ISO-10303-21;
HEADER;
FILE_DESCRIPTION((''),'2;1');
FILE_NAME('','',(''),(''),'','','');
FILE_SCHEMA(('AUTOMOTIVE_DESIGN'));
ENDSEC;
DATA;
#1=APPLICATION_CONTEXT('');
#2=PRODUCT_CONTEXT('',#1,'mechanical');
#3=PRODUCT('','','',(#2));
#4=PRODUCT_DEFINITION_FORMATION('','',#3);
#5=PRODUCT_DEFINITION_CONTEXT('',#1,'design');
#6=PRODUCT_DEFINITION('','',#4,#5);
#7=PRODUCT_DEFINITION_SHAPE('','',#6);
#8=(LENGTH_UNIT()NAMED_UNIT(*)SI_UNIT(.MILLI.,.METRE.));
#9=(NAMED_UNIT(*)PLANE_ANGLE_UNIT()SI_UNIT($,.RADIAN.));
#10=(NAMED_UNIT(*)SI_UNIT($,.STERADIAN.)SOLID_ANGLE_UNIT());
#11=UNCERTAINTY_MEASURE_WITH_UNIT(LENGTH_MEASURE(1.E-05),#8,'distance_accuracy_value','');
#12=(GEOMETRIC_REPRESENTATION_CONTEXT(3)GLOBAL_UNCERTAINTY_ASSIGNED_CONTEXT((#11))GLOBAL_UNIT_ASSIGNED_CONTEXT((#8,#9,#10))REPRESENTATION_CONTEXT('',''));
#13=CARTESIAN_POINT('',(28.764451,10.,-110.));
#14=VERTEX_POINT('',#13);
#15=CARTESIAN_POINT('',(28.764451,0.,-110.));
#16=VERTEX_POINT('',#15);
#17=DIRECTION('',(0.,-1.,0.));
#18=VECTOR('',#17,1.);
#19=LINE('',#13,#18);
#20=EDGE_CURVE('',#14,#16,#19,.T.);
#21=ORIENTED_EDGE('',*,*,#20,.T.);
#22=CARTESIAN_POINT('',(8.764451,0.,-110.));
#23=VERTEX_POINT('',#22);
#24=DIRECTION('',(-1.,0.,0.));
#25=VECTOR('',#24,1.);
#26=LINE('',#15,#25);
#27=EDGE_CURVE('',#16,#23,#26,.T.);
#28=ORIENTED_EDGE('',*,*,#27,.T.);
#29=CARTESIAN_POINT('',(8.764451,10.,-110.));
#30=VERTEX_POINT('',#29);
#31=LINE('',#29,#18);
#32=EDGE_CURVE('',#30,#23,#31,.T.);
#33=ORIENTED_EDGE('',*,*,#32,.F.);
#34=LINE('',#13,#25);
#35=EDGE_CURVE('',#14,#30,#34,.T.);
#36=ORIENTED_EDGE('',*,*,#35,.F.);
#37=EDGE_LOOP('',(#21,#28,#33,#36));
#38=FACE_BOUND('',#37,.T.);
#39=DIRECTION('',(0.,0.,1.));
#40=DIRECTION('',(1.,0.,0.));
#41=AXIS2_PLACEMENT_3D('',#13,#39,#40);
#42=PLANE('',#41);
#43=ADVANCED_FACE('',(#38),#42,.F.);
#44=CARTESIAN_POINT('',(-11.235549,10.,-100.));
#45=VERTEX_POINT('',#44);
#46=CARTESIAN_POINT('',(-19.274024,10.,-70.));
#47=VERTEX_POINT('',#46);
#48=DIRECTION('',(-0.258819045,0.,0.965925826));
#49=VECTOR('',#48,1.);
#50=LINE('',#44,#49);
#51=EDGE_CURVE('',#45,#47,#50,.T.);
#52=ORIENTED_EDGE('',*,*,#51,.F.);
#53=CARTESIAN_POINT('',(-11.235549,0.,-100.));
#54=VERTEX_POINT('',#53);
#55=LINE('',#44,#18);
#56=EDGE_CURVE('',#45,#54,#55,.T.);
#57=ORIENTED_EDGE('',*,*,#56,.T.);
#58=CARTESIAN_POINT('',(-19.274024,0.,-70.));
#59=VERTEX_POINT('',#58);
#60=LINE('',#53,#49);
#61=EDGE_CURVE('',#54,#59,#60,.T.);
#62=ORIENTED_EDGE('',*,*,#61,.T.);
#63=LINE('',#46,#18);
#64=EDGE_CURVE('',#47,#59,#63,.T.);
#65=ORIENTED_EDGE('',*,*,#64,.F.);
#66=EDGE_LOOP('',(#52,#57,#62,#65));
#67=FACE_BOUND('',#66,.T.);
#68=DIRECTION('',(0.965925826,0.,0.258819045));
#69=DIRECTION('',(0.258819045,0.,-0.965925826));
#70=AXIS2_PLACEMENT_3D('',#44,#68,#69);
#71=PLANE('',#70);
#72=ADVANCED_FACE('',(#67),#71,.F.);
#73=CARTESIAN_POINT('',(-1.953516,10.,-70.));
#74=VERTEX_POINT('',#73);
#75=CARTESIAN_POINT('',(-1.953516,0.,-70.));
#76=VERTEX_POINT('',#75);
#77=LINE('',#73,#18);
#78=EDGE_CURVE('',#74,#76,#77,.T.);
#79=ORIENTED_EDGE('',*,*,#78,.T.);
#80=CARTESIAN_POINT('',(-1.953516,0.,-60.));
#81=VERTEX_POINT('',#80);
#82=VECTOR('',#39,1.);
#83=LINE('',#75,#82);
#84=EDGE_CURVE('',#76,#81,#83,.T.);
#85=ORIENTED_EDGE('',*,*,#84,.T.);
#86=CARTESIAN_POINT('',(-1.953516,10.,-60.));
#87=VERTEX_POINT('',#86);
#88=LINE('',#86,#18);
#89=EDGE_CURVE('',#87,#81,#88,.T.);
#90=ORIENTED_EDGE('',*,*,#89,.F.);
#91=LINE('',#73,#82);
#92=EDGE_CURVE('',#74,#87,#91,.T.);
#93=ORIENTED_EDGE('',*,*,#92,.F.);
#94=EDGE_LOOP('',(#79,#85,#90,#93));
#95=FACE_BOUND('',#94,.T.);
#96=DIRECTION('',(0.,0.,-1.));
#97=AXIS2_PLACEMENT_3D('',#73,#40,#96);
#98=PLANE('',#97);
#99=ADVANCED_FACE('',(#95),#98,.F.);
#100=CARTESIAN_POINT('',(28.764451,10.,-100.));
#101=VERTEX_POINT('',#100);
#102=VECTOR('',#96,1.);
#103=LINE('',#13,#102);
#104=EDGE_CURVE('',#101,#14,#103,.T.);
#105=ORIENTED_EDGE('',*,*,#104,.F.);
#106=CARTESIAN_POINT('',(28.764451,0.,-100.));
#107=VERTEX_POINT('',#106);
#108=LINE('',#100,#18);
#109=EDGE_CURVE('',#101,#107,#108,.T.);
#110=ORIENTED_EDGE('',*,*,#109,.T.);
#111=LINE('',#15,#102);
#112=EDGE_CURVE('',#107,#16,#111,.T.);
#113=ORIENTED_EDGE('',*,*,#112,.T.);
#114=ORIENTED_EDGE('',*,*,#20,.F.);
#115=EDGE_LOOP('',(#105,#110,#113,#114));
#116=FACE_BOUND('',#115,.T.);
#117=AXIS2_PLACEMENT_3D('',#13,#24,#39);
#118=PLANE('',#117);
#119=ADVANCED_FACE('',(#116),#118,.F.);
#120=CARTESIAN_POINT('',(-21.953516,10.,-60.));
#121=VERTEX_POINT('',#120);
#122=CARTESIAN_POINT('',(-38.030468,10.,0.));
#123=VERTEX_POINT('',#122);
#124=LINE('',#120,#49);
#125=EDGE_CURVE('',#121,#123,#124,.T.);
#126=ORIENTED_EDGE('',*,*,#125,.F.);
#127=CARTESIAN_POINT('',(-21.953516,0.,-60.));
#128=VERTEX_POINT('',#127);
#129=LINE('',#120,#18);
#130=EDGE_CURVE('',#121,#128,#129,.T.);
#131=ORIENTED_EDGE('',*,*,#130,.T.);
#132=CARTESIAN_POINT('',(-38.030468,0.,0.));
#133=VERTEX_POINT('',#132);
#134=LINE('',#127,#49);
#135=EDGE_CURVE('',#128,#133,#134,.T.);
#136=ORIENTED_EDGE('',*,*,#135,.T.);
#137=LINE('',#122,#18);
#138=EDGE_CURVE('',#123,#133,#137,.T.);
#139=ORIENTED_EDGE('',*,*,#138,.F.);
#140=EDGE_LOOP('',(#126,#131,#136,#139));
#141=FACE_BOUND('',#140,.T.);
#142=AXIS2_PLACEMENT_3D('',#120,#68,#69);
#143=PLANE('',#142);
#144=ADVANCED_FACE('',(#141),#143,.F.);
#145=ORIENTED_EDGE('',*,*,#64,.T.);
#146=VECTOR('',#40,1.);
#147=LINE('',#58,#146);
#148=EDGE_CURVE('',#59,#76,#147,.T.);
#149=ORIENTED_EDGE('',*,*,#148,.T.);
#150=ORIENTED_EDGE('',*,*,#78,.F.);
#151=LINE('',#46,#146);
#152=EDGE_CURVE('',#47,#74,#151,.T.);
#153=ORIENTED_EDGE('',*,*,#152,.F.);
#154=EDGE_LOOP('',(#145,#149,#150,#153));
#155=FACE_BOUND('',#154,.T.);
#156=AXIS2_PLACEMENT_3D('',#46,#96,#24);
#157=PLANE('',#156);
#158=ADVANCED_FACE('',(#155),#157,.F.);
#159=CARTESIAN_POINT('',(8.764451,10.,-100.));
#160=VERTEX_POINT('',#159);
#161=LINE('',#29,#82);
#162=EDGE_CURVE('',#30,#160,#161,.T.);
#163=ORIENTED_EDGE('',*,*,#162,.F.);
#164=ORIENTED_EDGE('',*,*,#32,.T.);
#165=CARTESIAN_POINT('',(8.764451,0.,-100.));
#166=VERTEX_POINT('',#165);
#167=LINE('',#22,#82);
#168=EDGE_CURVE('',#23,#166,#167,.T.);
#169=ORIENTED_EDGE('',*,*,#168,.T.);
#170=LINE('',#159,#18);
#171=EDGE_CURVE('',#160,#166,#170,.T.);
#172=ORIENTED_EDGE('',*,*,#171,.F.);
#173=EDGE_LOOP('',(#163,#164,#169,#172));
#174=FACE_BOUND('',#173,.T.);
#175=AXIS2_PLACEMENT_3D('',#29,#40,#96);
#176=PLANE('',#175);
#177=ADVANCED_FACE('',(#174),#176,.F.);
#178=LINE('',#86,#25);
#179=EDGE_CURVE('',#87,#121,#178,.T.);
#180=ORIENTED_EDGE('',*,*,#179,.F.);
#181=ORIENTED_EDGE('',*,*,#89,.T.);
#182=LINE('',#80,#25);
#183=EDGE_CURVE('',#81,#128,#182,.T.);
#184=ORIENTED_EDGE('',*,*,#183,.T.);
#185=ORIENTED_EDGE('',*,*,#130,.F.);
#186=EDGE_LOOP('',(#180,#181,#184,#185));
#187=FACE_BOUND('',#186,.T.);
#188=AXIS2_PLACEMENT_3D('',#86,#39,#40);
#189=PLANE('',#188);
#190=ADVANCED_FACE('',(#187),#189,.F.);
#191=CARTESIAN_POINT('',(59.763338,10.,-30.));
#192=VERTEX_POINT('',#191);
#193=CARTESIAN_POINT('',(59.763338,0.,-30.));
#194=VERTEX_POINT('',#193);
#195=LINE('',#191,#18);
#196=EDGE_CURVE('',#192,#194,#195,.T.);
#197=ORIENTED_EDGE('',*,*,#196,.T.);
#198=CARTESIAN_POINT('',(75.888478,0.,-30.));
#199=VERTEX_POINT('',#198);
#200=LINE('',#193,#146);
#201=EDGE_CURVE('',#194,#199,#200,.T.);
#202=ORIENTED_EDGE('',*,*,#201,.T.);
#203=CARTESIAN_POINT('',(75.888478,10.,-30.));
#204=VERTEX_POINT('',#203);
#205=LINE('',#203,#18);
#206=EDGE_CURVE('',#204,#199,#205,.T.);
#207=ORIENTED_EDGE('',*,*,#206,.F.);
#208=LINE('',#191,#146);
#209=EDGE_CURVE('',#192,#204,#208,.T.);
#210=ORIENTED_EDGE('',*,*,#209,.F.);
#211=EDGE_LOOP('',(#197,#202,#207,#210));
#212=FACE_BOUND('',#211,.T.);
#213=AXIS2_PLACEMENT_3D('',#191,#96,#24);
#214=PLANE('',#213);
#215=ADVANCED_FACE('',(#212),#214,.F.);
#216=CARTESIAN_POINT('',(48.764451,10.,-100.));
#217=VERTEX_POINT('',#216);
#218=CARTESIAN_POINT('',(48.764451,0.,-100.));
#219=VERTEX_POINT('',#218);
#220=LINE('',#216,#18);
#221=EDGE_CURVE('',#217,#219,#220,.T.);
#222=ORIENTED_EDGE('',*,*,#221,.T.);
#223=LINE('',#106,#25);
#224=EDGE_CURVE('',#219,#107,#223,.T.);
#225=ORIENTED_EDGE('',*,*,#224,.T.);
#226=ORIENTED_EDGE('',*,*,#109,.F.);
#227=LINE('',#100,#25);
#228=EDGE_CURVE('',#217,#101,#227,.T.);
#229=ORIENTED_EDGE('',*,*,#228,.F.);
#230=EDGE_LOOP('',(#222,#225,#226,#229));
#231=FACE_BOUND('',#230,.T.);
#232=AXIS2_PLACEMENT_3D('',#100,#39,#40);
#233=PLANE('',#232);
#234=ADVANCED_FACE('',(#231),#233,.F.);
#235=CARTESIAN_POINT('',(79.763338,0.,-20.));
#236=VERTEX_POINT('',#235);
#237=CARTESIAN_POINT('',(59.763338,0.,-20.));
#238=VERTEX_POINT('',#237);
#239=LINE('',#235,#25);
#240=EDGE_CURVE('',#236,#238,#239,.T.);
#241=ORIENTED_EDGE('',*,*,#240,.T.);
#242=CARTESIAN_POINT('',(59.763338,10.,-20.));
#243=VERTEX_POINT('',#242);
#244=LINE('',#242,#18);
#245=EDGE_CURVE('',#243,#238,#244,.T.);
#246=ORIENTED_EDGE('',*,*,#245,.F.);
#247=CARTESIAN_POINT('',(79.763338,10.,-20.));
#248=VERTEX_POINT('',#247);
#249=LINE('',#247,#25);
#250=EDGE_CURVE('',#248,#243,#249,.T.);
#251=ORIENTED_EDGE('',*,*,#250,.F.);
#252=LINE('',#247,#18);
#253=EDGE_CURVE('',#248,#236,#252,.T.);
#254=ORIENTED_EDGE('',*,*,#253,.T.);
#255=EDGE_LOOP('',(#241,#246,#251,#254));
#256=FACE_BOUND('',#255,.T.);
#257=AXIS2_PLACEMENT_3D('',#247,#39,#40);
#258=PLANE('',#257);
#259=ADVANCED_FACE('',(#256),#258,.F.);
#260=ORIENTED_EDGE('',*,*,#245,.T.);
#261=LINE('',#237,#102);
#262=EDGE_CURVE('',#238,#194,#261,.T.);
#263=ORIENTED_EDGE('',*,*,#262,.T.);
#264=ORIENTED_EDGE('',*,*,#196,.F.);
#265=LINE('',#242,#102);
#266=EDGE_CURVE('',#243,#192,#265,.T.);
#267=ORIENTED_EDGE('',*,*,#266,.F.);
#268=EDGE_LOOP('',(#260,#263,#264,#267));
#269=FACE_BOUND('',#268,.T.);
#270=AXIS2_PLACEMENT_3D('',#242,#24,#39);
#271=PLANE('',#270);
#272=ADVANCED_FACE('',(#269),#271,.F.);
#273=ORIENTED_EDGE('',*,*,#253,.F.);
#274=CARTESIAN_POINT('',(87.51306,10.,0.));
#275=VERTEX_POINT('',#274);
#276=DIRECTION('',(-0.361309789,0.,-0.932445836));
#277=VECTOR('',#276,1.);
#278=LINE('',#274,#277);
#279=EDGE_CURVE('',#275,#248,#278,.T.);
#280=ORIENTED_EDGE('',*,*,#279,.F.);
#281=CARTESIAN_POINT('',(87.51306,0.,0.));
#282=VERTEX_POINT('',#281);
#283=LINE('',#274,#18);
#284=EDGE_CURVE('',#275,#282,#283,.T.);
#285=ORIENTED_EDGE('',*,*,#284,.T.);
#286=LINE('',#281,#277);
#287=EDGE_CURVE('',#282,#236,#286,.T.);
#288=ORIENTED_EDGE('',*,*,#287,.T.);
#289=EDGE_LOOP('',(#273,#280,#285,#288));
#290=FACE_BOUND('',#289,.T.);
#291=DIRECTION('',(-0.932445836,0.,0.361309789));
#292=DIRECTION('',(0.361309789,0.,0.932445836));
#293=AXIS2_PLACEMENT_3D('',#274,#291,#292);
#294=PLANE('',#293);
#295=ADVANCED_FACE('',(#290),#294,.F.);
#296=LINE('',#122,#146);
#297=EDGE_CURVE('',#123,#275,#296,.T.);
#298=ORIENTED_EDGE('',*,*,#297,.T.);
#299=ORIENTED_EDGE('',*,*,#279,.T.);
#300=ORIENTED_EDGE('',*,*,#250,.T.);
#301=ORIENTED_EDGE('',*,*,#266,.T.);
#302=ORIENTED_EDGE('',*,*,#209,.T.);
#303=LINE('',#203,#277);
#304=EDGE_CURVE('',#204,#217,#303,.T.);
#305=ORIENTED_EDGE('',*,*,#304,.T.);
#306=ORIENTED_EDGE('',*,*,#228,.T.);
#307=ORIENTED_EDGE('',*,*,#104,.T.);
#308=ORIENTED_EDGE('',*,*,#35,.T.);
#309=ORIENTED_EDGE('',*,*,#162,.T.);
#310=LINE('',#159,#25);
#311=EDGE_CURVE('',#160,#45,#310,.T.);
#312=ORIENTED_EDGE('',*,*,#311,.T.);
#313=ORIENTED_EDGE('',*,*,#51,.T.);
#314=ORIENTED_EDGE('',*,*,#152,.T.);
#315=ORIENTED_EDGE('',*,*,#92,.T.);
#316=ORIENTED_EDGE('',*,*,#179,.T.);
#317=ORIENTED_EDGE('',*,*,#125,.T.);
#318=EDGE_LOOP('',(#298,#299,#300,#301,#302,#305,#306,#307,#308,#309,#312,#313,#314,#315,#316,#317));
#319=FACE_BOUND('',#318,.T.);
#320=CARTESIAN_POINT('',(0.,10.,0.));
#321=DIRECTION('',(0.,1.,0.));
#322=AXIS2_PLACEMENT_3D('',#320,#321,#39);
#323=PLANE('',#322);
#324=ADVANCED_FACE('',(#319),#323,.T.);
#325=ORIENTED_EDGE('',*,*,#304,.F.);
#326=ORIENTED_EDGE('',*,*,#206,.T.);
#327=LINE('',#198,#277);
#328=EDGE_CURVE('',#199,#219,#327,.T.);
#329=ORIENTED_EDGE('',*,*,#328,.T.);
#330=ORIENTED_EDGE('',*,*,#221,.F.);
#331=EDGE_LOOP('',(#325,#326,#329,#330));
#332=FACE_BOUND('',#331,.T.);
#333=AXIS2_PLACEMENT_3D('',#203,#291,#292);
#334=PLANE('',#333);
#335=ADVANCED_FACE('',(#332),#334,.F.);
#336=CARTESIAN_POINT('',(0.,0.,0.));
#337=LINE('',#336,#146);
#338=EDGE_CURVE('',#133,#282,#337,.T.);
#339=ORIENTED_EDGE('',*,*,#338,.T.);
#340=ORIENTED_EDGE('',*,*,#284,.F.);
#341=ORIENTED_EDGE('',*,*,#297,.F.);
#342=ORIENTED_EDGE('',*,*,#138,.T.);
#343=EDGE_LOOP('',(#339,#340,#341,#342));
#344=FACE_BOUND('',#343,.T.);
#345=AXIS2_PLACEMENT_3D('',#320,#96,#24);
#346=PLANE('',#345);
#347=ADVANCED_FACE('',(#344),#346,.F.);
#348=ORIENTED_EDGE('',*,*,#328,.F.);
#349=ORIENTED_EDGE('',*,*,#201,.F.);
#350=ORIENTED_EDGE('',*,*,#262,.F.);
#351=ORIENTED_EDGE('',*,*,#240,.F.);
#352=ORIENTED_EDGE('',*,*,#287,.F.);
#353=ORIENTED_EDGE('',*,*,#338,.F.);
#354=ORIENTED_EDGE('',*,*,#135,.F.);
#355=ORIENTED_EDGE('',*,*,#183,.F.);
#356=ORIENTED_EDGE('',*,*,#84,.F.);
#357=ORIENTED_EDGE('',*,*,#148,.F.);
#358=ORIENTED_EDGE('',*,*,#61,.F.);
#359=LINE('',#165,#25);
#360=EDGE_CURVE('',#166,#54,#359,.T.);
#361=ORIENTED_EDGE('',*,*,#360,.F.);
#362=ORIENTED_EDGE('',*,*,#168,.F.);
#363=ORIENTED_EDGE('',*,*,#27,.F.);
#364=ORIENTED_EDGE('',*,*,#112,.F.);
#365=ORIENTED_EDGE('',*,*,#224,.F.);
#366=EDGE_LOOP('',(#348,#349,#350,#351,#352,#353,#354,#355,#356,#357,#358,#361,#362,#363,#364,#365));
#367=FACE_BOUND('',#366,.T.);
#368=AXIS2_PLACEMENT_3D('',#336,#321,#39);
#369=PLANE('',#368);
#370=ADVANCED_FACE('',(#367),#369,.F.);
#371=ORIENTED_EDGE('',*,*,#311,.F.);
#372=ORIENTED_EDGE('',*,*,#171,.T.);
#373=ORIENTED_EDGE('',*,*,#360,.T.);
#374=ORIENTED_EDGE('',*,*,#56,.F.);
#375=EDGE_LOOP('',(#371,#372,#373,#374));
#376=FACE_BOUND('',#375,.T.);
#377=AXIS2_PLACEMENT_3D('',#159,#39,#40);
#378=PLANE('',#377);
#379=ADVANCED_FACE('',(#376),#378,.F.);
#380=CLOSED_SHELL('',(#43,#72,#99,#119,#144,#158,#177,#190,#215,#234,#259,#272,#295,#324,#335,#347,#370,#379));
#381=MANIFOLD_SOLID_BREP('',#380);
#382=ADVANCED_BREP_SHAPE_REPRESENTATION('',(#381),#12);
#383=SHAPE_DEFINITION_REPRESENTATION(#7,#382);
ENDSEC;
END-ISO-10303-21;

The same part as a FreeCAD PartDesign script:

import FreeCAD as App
import Part
import Sketcher
from FreeCAD import Vector
Q = App.Units.Quantity

doc = App.newDocument("Part")
body = doc.addObject("PartDesign::Body", "Body")

# Sketch on XZ plane
sketch1 = body.newObject("Sketcher::SketchObject", "Sketch")
sketch1.AttachmentSupport = (doc.getObject("XZ_Plane"), [""])
sketch1.MapMode = "FlatFace"
sketch1.addGeometry(Part.LineSegment(Vector(87.51306, 0, 0), Vector(79.763338, -20, 0)), False)
sketch1.addGeometry(Part.LineSegment(Vector(79.763338, -20, 0), Vector(59.763338, -20, 0)), False)
sketch1.addGeometry(Part.LineSegment(Vector(59.763338, -20, 0), Vector(59.763338, -30, 0)), False)
sketch1.addGeometry(Part.LineSegment(Vector(59.763338, -30, 0), Vector(75.888478, -30, 0)), False)
sketch1.addGeometry(Part.LineSegment(Vector(75.888478, -30, 0), Vector(48.764451, -100, 0)), False)
sketch1.addGeometry(Part.LineSegment(Vector(48.764451, -100, 0), Vector(28.764451, -100, 0)), False)
sketch1.addGeometry(Part.LineSegment(Vector(28.764451, -100, 0), Vector(28.764451, -110, 0)), False)
sketch1.addGeometry(Part.LineSegment(Vector(28.764451, -110, 0), Vector(8.764451, -110, 0)), False)
sketch1.addGeometry(Part.LineSegment(Vector(8.764451, -110, 0), Vector(8.764451, -100, 0)), False)
sketch1.addGeometry(Part.LineSegment(Vector(8.764451, -100, 0), Vector(-11.235549, -100, 0)), False)
sketch1.addGeometry(Part.LineSegment(Vector(-11.235549, -100, 0), Vector(-19.274024, -70, 0)), False)
sketch1.addGeometry(Part.LineSegment(Vector(-19.274024, -70, 0), Vector(-1.953516, -70, 0)), False)
sketch1.addGeometry(Part.LineSegment(Vector(-1.953516, -70, 0), Vector(-1.953516, -60, 0)), False)
sketch1.addGeometry(Part.LineSegment(Vector(-1.953516, -60, 0), Vector(-21.953516, -60, 0)), False)
sketch1.addGeometry(Part.LineSegment(Vector(-21.953516, -60, 0), Vector(-38.030468, 0, 0)), False)
sketch1.addGeometry(Part.LineSegment(Vector(-38.030468, 0, 0), Vector(87.51306, 0, 0)), False)
sketch1.addConstraint(Sketcher.Constraint("Coincident", 0, 2, 1, 1))
sketch1.addConstraint(Sketcher.Constraint("Coincident", 1, 2, 2, 1))
sketch1.addConstraint(Sketcher.Constraint("Coincident", 2, 2, 3, 1))
sketch1.addConstraint(Sketcher.Constraint("Coincident", 3, 2, 4, 1))
sketch1.addConstraint(Sketcher.Constraint("Coincident", 4, 2, 5, 1))
sketch1.addConstraint(Sketcher.Constraint("Coincident", 5, 2, 6, 1))
sketch1.addConstraint(Sketcher.Constraint("Coincident", 6, 2, 7, 1))
sketch1.addConstraint(Sketcher.Constraint("Coincident", 7, 2, 8, 1))
sketch1.addConstraint(Sketcher.Constraint("Coincident", 8, 2, 9, 1))
sketch1.addConstraint(Sketcher.Constraint("Coincident", 9, 2, 10, 1))
sketch1.addConstraint(Sketcher.Constraint("Coincident", 10, 2, 11, 1))
sketch1.addConstraint(Sketcher.Constraint("Coincident", 11, 2, 12, 1))
sketch1.addConstraint(Sketcher.Constraint("Coincident", 12, 2, 13, 1))
sketch1.addConstraint(Sketcher.Constraint("Coincident", 13, 2, 14, 1))
sketch1.addConstraint(Sketcher.Constraint("Coincident", 14, 2, 15, 1))
sketch1.addConstraint(Sketcher.Constraint("Coincident", 15, 2, 0, 1))
sketch1.addConstraint(Sketcher.Constraint("Horizontal", 1))
sketch1.addConstraint(Sketcher.Constraint("Vertical", 2))
sketch1.addConstraint(Sketcher.Constraint("Horizontal", 3))
sketch1.addConstraint(Sketcher.Constraint("Horizontal", 5))
sketch1.addConstraint(Sketcher.Constraint("Vertical", 6))
sketch1.addConstraint(Sketcher.Constraint("Horizontal", 7))
sketch1.addConstraint(Sketcher.Constraint("Vertical", 8))
sketch1.addConstraint(Sketcher.Constraint("Horizontal", 9))
sketch1.addConstraint(Sketcher.Constraint("Horizontal", 11))
sketch1.addConstraint(Sketcher.Constraint("Vertical", 12))
sketch1.addConstraint(Sketcher.Constraint("Horizontal", 13))
sketch1.addConstraint(Sketcher.Constraint("Horizontal", 15))
sketch1.addConstraint(Sketcher.Constraint("PointOnObject", 14, 2, -1))
sketch1.addConstraint(Sketcher.Constraint("Parallel", 0, 4))
sketch1.addConstraint(Sketcher.Constraint("Parallel", 10, 14))
sketch1.addConstraint(Sketcher.Constraint("Horizontal", 5, 2, 8, 2))
sketch1.addConstraint(Sketcher.Constraint("Equal", 1, 5))
sketch1.addConstraint(Sketcher.Constraint("Equal", 5, 7))
sketch1.addConstraint(Sketcher.Constraint("Equal", 7, 9))
sketch1.addConstraint(Sketcher.Constraint("Equal", 9, 13))
sketch1.addConstraint(Sketcher.Constraint("Equal", 2, 6))
sketch1.addConstraint(Sketcher.Constraint("Equal", 8, 12))
sketch1.addConstraint(Sketcher.Constraint("DistanceX", 1, 2, 1, 1, 20.0))
sketch1.addConstraint(Sketcher.Constraint("DistanceY", 2, 2, 2, 1, 10.0))
sketch1.addConstraint(Sketcher.Constraint("Angle", 10, Q("105 deg")))
sketch1.addConstraint(Sketcher.Constraint("DistanceY", 0, 2, -1, 1, 20.0))
sketch1.addConstraint(Sketcher.Constraint("DistanceY", 4, 2, -1, 1, 100.0))
sketch1.addConstraint(Sketcher.Constraint("DistanceY", 10, 2, -1, 1, 70.0))
sketch1.addConstraint(Sketcher.Constraint("DistanceX", 3, 1, 3, 2, 16.125139))
sketch1.addConstraint(Sketcher.Constraint("DistanceX", 11, 1, 11, 2, 17.320508))
sketch1.addConstraint(Sketcher.Constraint("DistanceX", 15, 1, 15, 2, 125.543528))
sketch1.addConstraint(Sketcher.Constraint("DistanceX", -1, 1, 0, 2, 79.763338))
pad1 = body.newObject("PartDesign::Pad", "Pad")
pad1.Profile = sketch1
pad1.Length = 10
pad1.Reversed = True

doc.recompute()
